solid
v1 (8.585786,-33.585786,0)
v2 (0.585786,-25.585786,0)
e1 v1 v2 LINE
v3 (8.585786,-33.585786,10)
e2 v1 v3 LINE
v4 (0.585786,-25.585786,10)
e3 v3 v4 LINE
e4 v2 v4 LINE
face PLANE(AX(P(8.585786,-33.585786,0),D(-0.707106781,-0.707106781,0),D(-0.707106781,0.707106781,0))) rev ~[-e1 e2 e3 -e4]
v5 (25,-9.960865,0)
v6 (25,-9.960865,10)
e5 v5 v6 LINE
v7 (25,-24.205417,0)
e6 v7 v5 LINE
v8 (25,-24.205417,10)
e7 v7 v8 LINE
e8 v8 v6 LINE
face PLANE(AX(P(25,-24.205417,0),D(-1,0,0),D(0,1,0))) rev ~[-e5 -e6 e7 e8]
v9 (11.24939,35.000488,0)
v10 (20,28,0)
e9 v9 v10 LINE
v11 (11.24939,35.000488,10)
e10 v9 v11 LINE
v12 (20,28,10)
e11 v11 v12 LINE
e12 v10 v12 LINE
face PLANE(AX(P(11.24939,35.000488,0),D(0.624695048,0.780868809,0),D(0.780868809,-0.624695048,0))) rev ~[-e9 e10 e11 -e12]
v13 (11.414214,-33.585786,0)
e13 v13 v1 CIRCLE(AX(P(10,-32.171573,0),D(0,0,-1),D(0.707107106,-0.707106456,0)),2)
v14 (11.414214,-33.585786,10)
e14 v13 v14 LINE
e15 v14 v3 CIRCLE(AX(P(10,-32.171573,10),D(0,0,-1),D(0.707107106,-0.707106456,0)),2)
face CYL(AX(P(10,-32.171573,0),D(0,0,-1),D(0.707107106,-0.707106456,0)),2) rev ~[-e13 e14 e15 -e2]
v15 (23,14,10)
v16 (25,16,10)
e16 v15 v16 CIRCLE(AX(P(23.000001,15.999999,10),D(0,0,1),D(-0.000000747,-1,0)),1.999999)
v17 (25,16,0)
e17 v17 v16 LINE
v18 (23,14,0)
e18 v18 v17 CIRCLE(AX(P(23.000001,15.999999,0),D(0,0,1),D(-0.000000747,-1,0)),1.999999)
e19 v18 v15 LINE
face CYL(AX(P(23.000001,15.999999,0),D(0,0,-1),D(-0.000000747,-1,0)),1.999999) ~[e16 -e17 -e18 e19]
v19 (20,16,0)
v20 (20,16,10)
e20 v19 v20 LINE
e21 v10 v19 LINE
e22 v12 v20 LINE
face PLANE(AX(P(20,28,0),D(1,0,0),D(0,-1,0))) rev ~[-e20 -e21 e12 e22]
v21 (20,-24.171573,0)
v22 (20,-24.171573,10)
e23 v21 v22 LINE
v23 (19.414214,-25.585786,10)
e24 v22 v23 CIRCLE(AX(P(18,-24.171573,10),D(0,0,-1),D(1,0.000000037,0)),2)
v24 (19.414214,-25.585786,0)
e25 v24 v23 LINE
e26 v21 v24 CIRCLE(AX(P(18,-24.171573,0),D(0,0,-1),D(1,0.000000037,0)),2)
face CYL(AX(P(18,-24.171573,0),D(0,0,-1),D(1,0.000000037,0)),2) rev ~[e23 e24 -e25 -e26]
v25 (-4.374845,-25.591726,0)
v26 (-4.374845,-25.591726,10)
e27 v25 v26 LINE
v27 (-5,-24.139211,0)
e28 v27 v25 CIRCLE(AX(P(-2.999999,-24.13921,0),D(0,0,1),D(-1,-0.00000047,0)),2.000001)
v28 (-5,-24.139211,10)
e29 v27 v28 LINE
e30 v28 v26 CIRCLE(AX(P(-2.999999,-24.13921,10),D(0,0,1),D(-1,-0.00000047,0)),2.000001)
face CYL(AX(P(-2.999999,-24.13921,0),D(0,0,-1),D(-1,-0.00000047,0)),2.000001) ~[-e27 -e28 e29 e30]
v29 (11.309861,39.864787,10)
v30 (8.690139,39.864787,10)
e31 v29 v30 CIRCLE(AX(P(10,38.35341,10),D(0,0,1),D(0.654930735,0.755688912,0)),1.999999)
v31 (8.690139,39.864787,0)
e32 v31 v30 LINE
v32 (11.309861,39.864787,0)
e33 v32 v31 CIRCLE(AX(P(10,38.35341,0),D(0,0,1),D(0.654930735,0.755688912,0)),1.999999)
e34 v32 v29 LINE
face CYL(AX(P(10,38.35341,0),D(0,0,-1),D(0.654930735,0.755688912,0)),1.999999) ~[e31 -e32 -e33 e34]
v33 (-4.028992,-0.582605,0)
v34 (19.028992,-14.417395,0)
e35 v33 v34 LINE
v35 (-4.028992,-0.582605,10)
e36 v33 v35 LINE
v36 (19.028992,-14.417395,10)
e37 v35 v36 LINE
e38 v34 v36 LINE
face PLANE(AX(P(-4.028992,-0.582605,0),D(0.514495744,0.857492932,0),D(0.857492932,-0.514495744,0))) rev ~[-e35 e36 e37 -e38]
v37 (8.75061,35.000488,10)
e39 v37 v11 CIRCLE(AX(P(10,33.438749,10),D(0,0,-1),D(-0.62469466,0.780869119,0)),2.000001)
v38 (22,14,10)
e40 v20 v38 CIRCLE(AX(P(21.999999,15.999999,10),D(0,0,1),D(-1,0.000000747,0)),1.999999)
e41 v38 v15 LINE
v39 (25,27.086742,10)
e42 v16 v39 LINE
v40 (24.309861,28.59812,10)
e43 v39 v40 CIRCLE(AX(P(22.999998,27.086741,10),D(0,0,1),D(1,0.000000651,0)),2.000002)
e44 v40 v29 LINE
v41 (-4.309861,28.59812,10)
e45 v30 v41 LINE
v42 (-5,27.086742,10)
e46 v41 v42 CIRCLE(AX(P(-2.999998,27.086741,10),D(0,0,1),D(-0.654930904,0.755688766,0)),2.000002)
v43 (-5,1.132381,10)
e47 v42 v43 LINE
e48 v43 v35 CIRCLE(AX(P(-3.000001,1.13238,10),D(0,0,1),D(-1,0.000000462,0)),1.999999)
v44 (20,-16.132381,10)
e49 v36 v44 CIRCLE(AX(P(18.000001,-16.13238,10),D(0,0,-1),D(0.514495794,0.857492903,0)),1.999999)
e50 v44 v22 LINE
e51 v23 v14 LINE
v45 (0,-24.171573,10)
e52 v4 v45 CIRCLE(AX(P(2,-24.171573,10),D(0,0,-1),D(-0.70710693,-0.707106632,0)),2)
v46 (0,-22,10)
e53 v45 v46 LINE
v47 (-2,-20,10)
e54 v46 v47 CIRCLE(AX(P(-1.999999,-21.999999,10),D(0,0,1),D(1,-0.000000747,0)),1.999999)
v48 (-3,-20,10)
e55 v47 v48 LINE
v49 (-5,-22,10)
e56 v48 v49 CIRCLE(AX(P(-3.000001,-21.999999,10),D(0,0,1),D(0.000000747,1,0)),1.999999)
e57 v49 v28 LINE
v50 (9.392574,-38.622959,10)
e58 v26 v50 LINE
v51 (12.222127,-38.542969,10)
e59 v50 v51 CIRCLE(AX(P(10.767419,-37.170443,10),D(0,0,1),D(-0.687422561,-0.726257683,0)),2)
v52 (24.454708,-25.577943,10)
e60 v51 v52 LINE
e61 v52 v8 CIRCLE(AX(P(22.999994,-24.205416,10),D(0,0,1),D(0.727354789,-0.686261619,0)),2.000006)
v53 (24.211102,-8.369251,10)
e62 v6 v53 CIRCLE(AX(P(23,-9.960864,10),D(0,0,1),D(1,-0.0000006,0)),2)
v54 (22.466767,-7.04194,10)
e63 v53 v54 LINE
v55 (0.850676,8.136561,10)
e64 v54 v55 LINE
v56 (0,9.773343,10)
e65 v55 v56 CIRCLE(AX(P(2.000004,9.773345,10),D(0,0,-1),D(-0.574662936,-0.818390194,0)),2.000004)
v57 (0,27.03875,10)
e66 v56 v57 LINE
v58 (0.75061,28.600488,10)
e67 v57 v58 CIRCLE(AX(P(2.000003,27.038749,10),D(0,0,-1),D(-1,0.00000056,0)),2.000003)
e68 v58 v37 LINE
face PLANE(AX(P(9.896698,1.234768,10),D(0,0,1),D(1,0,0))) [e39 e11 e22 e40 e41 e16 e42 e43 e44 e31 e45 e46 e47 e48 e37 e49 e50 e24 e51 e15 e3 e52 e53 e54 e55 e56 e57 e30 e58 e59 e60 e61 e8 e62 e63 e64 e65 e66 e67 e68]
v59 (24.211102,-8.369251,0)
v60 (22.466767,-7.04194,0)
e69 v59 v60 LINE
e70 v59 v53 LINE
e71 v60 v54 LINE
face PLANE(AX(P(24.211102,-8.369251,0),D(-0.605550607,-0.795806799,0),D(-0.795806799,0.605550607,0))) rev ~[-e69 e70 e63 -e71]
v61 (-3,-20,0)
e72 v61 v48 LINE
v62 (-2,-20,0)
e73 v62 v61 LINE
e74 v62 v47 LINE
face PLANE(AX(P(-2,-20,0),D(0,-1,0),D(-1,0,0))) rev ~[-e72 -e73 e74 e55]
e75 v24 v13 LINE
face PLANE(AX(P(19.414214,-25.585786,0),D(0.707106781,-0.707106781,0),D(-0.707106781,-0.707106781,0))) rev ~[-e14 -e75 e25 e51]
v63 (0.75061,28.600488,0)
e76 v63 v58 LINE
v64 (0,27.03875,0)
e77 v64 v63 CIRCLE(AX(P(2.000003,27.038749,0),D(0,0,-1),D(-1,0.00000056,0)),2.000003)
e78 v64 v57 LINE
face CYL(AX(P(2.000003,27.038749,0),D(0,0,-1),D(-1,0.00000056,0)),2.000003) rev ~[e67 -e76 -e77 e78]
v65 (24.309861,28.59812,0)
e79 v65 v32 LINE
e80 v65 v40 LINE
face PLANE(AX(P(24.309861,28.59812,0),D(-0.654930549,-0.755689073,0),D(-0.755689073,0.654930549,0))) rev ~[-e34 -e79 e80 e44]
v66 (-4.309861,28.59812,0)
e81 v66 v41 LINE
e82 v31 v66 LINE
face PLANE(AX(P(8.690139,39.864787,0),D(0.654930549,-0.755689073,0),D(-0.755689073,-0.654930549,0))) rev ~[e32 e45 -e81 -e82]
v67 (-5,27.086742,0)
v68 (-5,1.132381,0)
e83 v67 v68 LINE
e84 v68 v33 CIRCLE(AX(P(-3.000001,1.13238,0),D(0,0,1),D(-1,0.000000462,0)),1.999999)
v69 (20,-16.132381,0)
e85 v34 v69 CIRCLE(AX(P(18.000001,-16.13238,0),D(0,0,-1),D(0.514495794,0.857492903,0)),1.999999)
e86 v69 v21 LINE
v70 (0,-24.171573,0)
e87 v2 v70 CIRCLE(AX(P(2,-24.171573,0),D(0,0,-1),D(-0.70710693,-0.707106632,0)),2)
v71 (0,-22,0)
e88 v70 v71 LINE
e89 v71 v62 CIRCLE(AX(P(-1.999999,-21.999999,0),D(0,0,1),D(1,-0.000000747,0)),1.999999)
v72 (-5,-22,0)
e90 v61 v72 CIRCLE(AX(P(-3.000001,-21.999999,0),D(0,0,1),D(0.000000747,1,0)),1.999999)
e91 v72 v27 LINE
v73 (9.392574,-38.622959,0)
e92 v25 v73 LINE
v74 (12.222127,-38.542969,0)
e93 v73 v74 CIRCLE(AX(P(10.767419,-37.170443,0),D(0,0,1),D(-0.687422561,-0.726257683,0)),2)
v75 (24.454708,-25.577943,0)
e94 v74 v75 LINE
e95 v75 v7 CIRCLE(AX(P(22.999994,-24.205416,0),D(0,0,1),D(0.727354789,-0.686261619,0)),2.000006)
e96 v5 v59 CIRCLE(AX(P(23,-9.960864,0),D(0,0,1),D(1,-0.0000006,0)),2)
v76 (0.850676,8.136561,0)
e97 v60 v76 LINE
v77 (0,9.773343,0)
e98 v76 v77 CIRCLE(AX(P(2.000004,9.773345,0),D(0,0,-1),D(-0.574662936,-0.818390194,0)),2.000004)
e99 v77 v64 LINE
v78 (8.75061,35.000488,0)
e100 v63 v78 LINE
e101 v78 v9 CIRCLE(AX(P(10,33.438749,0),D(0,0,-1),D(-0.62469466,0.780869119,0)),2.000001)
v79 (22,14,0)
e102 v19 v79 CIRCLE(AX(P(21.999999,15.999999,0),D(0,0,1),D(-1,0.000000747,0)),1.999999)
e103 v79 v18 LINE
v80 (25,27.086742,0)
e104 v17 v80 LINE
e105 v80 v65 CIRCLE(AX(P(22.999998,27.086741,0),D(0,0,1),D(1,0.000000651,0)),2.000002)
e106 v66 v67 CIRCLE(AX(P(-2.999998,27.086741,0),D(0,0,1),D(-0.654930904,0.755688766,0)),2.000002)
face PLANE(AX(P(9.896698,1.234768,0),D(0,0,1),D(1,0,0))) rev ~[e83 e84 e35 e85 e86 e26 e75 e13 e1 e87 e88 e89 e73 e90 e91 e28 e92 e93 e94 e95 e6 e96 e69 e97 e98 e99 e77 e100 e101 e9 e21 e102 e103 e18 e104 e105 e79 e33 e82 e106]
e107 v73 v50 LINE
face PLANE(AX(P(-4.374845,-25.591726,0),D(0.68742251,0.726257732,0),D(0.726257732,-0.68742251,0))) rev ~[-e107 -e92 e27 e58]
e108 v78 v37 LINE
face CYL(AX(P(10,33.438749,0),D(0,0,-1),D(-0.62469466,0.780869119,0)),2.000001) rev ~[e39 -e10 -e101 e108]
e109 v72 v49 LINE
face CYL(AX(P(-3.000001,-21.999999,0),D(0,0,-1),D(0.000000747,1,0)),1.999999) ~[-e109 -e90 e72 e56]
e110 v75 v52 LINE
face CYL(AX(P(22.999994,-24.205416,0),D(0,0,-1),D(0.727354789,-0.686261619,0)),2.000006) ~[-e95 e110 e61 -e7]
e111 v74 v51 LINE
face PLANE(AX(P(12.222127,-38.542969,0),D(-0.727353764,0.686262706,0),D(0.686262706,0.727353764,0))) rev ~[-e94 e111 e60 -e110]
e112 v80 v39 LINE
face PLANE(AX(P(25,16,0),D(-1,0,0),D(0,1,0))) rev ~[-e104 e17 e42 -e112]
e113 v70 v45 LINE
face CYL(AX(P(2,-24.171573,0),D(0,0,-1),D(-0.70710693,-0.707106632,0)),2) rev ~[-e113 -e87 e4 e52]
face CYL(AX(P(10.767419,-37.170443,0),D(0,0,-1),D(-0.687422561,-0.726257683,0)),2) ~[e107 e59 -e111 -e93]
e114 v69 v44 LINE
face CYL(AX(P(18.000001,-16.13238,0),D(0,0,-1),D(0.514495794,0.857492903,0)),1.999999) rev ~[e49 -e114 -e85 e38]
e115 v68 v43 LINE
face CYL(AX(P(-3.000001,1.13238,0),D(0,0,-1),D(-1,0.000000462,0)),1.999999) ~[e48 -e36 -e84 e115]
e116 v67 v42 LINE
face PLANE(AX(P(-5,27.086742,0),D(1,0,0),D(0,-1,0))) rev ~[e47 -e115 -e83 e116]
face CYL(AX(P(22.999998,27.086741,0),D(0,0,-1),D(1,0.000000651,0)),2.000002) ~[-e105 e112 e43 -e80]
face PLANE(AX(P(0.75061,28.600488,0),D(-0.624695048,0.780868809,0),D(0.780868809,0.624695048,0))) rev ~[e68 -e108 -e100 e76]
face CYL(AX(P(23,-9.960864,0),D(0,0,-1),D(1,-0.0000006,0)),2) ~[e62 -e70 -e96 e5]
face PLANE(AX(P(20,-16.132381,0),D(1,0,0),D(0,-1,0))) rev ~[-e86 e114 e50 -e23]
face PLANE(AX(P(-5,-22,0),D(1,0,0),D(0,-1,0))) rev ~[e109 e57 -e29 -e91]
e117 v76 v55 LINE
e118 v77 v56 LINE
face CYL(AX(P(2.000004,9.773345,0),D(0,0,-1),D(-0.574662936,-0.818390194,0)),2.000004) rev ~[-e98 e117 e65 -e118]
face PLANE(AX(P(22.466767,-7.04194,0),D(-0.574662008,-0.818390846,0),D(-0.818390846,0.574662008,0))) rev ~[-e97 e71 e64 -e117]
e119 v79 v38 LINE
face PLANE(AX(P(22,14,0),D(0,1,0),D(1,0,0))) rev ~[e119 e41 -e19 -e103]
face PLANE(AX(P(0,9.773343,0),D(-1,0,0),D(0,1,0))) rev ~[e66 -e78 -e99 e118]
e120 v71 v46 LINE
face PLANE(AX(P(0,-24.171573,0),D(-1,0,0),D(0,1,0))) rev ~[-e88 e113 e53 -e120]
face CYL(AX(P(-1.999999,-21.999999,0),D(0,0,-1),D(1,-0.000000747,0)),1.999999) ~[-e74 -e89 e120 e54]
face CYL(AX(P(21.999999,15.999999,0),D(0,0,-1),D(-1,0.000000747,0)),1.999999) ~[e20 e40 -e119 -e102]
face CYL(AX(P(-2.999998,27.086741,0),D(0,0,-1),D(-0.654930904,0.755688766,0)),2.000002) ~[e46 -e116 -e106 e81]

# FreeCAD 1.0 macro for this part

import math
import FreeCAD as App
import Part
import Sketcher
from FreeCAD import Vector
Q = App.Units.Quantity

doc = App.newDocument("Part")
body = doc.addObject("PartDesign::Body", "Body")

sketch1 = body.newObject("Sketcher::SketchObject", "Sketch")
sketch1.AttachmentSupport = (doc.getObject("XY_Plane"), [""])
sketch1.MapMode = "FlatFace"
sketch1.addGeometry([
    Part.ArcOfCircle(Part.Circle(Vector(2, 9.8, 0), Vector(0, 0, 1), 2), math.radians(-180), math.radians(-125)),
    Part.LineSegment(Vector(0, 9.8, 0), Vector(0, 27, 0)),
    Part.ArcOfCircle(Part.Circle(Vector(2, 27, 0), Vector(0, 0, 1), 2), math.radians(129), math.radians(180)),
    Part.LineSegment(Vector(0.8, 28.6, 0), Vector(8.8, 35, 0)),
    Part.ArcOfCircle(Part.Circle(Vector(10, 33.4, 0), Vector(0, 0, 1), 2), math.radians(51), math.radians(129)),
    Part.LineSegment(Vector(11.2, 35, 0), Vector(20, 28, 0)),
    Part.LineSegment(Vector(20, 28, 0), Vector(20, 16, 0)),
    Part.ArcOfCircle(Part.Circle(Vector(22, 16, 0), Vector(0, 0, 1), 2), math.radians(180), math.radians(270)),
    Part.LineSegment(Vector(22, 14, 0), Vector(23, 14, 0)),
    Part.ArcOfCircle(Part.Circle(Vector(23, 16, 0), Vector(0, 0, 1), 2), math.radians(-90), math.radians(0)),
    Part.LineSegment(Vector(25, 16, 0), Vector(25, 27.1, 0)),
    Part.ArcOfCircle(Part.Circle(Vector(23, 27.1, 0), Vector(0, 0, 1), 2), math.radians(0), math.radians(49)),
    Part.LineSegment(Vector(24.3, 28.6, 0), Vector(11.3, 39.9, 0)),
    Part.ArcOfCircle(Part.Circle(Vector(10, 38.4, 0), Vector(0, 0, 1), 2), math.radians(49), math.radians(131)),
    Part.LineSegment(Vector(8.7, 39.9, 0), Vector(-4.3, 28.6, 0)),
    Part.ArcOfCircle(Part.Circle(Vector(-3, 27.1, 0), Vector(0, 0, 1), 2), math.radians(131), math.radians(180)),
    Part.LineSegment(Vector(-5, 27.1, 0), Vector(-5, 1.1, 0)),
    Part.ArcOfCircle(Part.Circle(Vector(-3, 1.1, 0), Vector(0, 0, 1), 2), math.radians(180), math.radians(239)),
    Part.LineSegment(Vector(-4, -0.6, 0), Vector(19, -14.4, 0)),
    Part.ArcOfCircle(Part.Circle(Vector(18, -16.1, 0), Vector(0, 0, 1), 2), math.radians(0), math.radians(59)),
    Part.LineSegment(Vector(20, -16.1, 0), Vector(20, -24.2, 0)),
    Part.ArcOfCircle(Part.Circle(Vector(18, -24.2, 0), Vector(0, 0, 1), 2), math.radians(-45), math.radians(0)),
    Part.LineSegment(Vector(19.4, -25.6, 0), Vector(11.4, -33.6, 0)),
    Part.ArcOfCircle(Part.Circle(Vector(10, -32.2, 0), Vector(0, 0, 1), 2), math.radians(-135), math.radians(-45)),
    Part.LineSegment(Vector(8.6, -33.6, 0), Vector(0.6, -25.6, 0)),
    Part.ArcOfCircle(Part.Circle(Vector(2, -24.2, 0), Vector(0, 0, 1), 2), math.radians(180), math.radians(225)),
    Part.LineSegment(Vector(0, -24.2, 0), Vector(0, -22, 0)),
    Part.ArcOfCircle(Part.Circle(Vector(-2, -22, 0), Vector(0, 0, 1), 2), math.radians(0), math.radians(90)),
    Part.LineSegment(Vector(-2, -20, 0), Vector(-3, -20, 0)),
    Part.ArcOfCircle(Part.Circle(Vector(-3, -22, 0), Vector(0, 0, 1), 2), math.radians(90), math.radians(180)),
    Part.LineSegment(Vector(-5, -22, 0), Vector(-5, -24.1, 0)),
    Part.ArcOfCircle(Part.Circle(Vector(-3, -24.1, 0), Vector(0, 0, 1), 2), math.radians(-180), math.radians(-133)),
    Part.LineSegment(Vector(-4.4, -25.6, 0), Vector(9.4, -38.6, 0)),
    Part.ArcOfCircle(Part.Circle(Vector(10.8, -37.2, 0), Vector(0, 0, 1), 2), math.radians(-133), math.radians(-43)),
    Part.LineSegment(Vector(12.2, -38.5, 0), Vector(24.5, -25.6, 0)),
    Part.ArcOfCircle(Part.Circle(Vector(23, -24.2, 0), Vector(0, 0, 1), 2), math.radians(-43), math.radians(0)),
    Part.LineSegment(Vector(25, -24.2, 0), Vector(25, -10, 0)),
    Part.ArcOfCircle(Part.Circle(Vector(23, -10, 0), Vector(0, 0, 1), 2), math.radians(0), math.radians(53)),
    Part.LineSegment(Vector(24.2, -8.4, 0), Vector(22.5, -7, 0)),
    Part.LineSegment(Vector(22.5, -7, 0), Vector(0.9, 8.1, 0)),
], False)
sketch1.addConstraint([
    Sketcher.Constraint("Tangent", 0, 1, 1, 1),
    Sketcher.Constraint("Tangent", 1, 2, 2, 2),
    Sketcher.Constraint("Tangent", 2, 1, 3, 1),
    Sketcher.Constraint("Tangent", 3, 2, 4, 2),
    Sketcher.Constraint("Tangent", 4, 1, 5, 1),
    Sketcher.Constraint("Coincident", 5, 2, 6, 1),
    Sketcher.Constraint("Tangent", 6, 2, 7, 1),
    Sketcher.Constraint("Tangent", 7, 2, 8, 1),
    Sketcher.Constraint("Tangent", 8, 2, 9, 1),
    Sketcher.Constraint("Tangent", 9, 2, 10, 1),
    Sketcher.Constraint("Tangent", 10, 2, 11, 1),
    Sketcher.Constraint("Tangent", 11, 2, 12, 1),
    Sketcher.Constraint("Tangent", 12, 2, 13, 1),
    Sketcher.Constraint("Tangent", 13, 2, 14, 1),
    Sketcher.Constraint("Tangent", 14, 2, 15, 1),
    Sketcher.Constraint("Tangent", 15, 2, 16, 1),
    Sketcher.Constraint("Tangent", 16, 2, 17, 1),
    Sketcher.Constraint("Tangent", 17, 2, 18, 1),
    Sketcher.Constraint("Tangent", 18, 2, 19, 2),
    Sketcher.Constraint("Tangent", 19, 1, 20, 1),
    Sketcher.Constraint("Tangent", 20, 2, 21, 2),
    Sketcher.Constraint("Tangent", 21, 1, 22, 1),
    Sketcher.Constraint("Tangent", 22, 2, 23, 2),
    Sketcher.Constraint("Tangent", 23, 1, 24, 1),
    Sketcher.Constraint("Tangent", 24, 2, 25, 2),
    Sketcher.Constraint("Tangent", 25, 1, 26, 1),
    Sketcher.Constraint("Tangent", 26, 2, 27, 1),
    Sketcher.Constraint("Tangent", 27, 2, 28, 1),
    Sketcher.Constraint("Tangent", 28, 2, 29, 1),
    Sketcher.Constraint("Tangent", 29, 2, 30, 1),
    Sketcher.Constraint("Tangent", 30, 2, 31, 1),
    Sketcher.Constraint("Tangent", 31, 2, 32, 1),
    Sketcher.Constraint("Tangent", 32, 2, 33, 1),
    Sketcher.Constraint("Tangent", 33, 2, 34, 1),
    Sketcher.Constraint("Tangent", 34, 2, 35, 1),
    Sketcher.Constraint("Tangent", 35, 2, 36, 1),
    Sketcher.Constraint("Tangent", 36, 2, 37, 1),
    Sketcher.Constraint("Tangent", 37, 2, 38, 1),
    Sketcher.Constraint("Coincident", 38, 2, 39, 1),
    Sketcher.Constraint("Tangent", 39, 2, 0, 2),
    Sketcher.Constraint("Vertical", 1),
    Sketcher.Constraint("Vertical", 6),
    Sketcher.Constraint("Horizontal", 8),
    Sketcher.Constraint("Vertical", 10),
    Sketcher.Constraint("Vertical", 16),
    Sketcher.Constraint("Vertical", 20),
    Sketcher.Constraint("Vertical", 26),
    Sketcher.Constraint("Horizontal", 28),
    Sketcher.Constraint("Vertical", 30),
    Sketcher.Constraint("Vertical", 36),
    Sketcher.Constraint("Equal", 0, 2),
    Sketcher.Constraint("Equal", 2, 4),
    Sketcher.Constraint("Equal", 7, 9),
    Sketcher.Constraint("Equal", 4, 11),
    Sketcher.Constraint("Equal", 9, 13),
    Sketcher.Constraint("Equal", 11, 15),
    Sketcher.Constraint("Equal", 13, 17),
    Sketcher.Constraint("Equal", 17, 19),
    Sketcher.Constraint("Equal", 19, 21),
    Sketcher.Constraint("Equal", 21, 23),
    Sketcher.Constraint("Equal", 23, 25),
    Sketcher.Constraint("Equal", 25, 27),
    Sketcher.Constraint("Equal", 27, 29),
    Sketcher.Constraint("Equal", 25, 31),
    Sketcher.Constraint("Equal", 31, 33),
    Sketcher.Constraint("Equal", 0, 35),
    Sketcher.Constraint("Equal", 33, 37),
    Sketcher.Constraint("PointOnObject", 0, 1, -2),
    Sketcher.Constraint("PointOnObject", 25, 1, -2),
    Sketcher.Constraint("Perpendicular", 22, 24),
    Sketcher.Constraint("Horizontal", 11, 3, 15, 3),
    Sketcher.Constraint("Horizontal", 21, 3, 25, 3),
    Sketcher.Constraint("Horizontal", 3, 2, 4, 1),
    Sketcher.Constraint("Horizontal", 12, 2, 13, 2),
    Sketcher.Constraint("Horizontal", 22, 2, 23, 1),
    Sketcher.Constraint("Vertical", 4, 3, 13, 3),
    Sketcher.Constraint("Vertical", 13, 3, 23, 3),
    Sketcher.Constraint("Vertical", 17, 3, 29, 3),
    Sketcher.Constraint("Vertical", 9, 3, 37, 3),
    Sketcher.Constraint("Vertical", 6, 2, 19, 1),
    Sketcher.Constraint("Radius", 4, Q("2.000001 mm")),
    Sketcher.Constraint("Radius", 7, Q("1.999999 mm")),
    Sketcher.Constraint("DistanceX", 8, 1, 8, 2, Q("1 mm")),
    Sketcher.Constraint("DistanceY", 6, 2, 6, 1, Q("12 mm")),
    Sketcher.Constraint("DistanceX", -1, 1, 4, 3, Q("10 mm")),
    Sketcher.Constraint("DistanceY", -1, 1, 7, 3, Q("15.999999 mm")),
    Sketcher.Constraint("DistanceY", 27, 3, -1, 1, Q("21.999999 mm")),
    Sketcher.Constraint("DistanceY", 2, 3, 4, 3, Q("6.4 mm")),
    Sketcher.Constraint("Distance", 18, Q("26.889999 mm")),
    Sketcher.Constraint("DistanceY", 16, 2, 16, 1, Q("25.954361 mm")),
    Sketcher.Constraint("DistanceY", 30, 2, 30, 1, Q("2.139211 mm")),
    Sketcher.Constraint("DistanceX", -1, 1, 37, 2, Q("24.211102 mm")),
    Sketcher.Constraint("DistanceY", 4, 1, 12, 2, Q("4.864299 mm")),
    Sketcher.Constraint("Distance", 39, Q("26.412919 mm")),
    Sketcher.Constraint("DistanceY", 1, 1, 1, 2, Q("17.265407 mm")),
    Sketcher.Constraint("DistanceY", 10, 1, 10, 2, Q("11.086742 mm")),
    Sketcher.Constraint("DistanceY", 20, 2, 20, 1, Q("8.039192 mm")),
    Sketcher.Constraint("DistanceY", 36, 1, 36, 2, Q("14.244552 mm")),
    Sketcher.Constraint("DistanceX", -1, 1, 33, 3, Q("10.767419 mm")),
    Sketcher.Constraint("DistanceY", 32, 2, -1, 1, Q("38.622959 mm")),
    Sketcher.Constraint("DistanceY", 33, 2, -1, 1, Q("38.542969 mm")),
])
pad1 = body.newObject("PartDesign::Pad", "Pad")
pad1.Profile = sketch1
pad1.Length = 10

doc.recompute()
